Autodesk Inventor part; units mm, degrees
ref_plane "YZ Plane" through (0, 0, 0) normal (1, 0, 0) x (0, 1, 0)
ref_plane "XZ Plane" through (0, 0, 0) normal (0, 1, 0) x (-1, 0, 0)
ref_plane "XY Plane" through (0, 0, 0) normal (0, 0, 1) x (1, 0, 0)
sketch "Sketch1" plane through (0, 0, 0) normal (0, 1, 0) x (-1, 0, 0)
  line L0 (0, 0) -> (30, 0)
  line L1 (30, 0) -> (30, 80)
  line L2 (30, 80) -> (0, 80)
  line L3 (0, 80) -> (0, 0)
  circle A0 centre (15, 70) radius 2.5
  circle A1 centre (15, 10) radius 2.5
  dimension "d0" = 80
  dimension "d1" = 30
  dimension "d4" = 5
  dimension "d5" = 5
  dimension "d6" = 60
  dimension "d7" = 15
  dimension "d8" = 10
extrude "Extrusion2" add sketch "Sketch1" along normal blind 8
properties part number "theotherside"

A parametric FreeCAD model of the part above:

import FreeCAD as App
import Part
import Sketcher


def add_polygon(sketch, points):
    """Adds a closed chain of lines whose ends are joined by coincident constraints."""
    first, n = sketch.GeometryCount, len(points)
    for a, b in zip(points, points[1:] + points[:1]):
        sketch.addGeometry(Part.LineSegment(App.Vector(*a, 0), App.Vector(*b, 0)), False)
    for i in range(n):
        sketch.addConstraint(Sketcher.Constraint("Coincident", first + i, 2, first + (i + 1) % n, 1))

doc = App.newDocument("Part")
body = doc.addObject("PartDesign::Body", "Body")

sketch1 = body.newObject("Sketcher::SketchObject", "Sketch")
sketch1.AttachmentSupport = (doc.getObject("XZ_Plane"), [""])
sketch1.MapMode = "FlatFace"
add_polygon(sketch1, [(0, 80), (0, 0), (-30, 0), (-30, 80)])
sketch1.addGeometry(Part.Circle(App.Vector(-15, 10, 0), App.Vector(0, 0, 1), 2.5), False)
sketch1.addGeometry(Part.Circle(App.Vector(-15, 70, 0), App.Vector(0, 0, 1), 2.5), False)
sketch1.addConstraint([
    Sketcher.Constraint("Vertical", 0),
    Sketcher.Constraint("Horizontal", 1),
    Sketcher.Constraint("Vertical", 2),
    Sketcher.Constraint("Horizontal", 3),
    Sketcher.Constraint("Coincident", 0, 2, -1, 1),
    Sketcher.Constraint("Equal", 4, 5),
    Sketcher.Constraint("Vertical", 4, 3, 5, 3),
    Sketcher.Constraint("Diameter", 4, 5.0),
    Sketcher.Constraint("DistanceX", 1, 2, 1, 1, 30.0),
    Sketcher.Constraint("DistanceY", 0, 2, 0, 1, 80.0),
    Sketcher.Constraint("DistanceX", 4, 3, -1, 1, 15.0),
    Sketcher.Constraint("DistanceY", -1, 1, 4, 3, 10.0),
    Sketcher.Constraint("DistanceY", 4, 3, 5, 3, 60.0),
])
pad1 = body.newObject("PartDesign::Pad", "Pad")
pad1.Profile = sketch1
pad1.Length = 8
pad1.Reversed = True

doc.recompute()
